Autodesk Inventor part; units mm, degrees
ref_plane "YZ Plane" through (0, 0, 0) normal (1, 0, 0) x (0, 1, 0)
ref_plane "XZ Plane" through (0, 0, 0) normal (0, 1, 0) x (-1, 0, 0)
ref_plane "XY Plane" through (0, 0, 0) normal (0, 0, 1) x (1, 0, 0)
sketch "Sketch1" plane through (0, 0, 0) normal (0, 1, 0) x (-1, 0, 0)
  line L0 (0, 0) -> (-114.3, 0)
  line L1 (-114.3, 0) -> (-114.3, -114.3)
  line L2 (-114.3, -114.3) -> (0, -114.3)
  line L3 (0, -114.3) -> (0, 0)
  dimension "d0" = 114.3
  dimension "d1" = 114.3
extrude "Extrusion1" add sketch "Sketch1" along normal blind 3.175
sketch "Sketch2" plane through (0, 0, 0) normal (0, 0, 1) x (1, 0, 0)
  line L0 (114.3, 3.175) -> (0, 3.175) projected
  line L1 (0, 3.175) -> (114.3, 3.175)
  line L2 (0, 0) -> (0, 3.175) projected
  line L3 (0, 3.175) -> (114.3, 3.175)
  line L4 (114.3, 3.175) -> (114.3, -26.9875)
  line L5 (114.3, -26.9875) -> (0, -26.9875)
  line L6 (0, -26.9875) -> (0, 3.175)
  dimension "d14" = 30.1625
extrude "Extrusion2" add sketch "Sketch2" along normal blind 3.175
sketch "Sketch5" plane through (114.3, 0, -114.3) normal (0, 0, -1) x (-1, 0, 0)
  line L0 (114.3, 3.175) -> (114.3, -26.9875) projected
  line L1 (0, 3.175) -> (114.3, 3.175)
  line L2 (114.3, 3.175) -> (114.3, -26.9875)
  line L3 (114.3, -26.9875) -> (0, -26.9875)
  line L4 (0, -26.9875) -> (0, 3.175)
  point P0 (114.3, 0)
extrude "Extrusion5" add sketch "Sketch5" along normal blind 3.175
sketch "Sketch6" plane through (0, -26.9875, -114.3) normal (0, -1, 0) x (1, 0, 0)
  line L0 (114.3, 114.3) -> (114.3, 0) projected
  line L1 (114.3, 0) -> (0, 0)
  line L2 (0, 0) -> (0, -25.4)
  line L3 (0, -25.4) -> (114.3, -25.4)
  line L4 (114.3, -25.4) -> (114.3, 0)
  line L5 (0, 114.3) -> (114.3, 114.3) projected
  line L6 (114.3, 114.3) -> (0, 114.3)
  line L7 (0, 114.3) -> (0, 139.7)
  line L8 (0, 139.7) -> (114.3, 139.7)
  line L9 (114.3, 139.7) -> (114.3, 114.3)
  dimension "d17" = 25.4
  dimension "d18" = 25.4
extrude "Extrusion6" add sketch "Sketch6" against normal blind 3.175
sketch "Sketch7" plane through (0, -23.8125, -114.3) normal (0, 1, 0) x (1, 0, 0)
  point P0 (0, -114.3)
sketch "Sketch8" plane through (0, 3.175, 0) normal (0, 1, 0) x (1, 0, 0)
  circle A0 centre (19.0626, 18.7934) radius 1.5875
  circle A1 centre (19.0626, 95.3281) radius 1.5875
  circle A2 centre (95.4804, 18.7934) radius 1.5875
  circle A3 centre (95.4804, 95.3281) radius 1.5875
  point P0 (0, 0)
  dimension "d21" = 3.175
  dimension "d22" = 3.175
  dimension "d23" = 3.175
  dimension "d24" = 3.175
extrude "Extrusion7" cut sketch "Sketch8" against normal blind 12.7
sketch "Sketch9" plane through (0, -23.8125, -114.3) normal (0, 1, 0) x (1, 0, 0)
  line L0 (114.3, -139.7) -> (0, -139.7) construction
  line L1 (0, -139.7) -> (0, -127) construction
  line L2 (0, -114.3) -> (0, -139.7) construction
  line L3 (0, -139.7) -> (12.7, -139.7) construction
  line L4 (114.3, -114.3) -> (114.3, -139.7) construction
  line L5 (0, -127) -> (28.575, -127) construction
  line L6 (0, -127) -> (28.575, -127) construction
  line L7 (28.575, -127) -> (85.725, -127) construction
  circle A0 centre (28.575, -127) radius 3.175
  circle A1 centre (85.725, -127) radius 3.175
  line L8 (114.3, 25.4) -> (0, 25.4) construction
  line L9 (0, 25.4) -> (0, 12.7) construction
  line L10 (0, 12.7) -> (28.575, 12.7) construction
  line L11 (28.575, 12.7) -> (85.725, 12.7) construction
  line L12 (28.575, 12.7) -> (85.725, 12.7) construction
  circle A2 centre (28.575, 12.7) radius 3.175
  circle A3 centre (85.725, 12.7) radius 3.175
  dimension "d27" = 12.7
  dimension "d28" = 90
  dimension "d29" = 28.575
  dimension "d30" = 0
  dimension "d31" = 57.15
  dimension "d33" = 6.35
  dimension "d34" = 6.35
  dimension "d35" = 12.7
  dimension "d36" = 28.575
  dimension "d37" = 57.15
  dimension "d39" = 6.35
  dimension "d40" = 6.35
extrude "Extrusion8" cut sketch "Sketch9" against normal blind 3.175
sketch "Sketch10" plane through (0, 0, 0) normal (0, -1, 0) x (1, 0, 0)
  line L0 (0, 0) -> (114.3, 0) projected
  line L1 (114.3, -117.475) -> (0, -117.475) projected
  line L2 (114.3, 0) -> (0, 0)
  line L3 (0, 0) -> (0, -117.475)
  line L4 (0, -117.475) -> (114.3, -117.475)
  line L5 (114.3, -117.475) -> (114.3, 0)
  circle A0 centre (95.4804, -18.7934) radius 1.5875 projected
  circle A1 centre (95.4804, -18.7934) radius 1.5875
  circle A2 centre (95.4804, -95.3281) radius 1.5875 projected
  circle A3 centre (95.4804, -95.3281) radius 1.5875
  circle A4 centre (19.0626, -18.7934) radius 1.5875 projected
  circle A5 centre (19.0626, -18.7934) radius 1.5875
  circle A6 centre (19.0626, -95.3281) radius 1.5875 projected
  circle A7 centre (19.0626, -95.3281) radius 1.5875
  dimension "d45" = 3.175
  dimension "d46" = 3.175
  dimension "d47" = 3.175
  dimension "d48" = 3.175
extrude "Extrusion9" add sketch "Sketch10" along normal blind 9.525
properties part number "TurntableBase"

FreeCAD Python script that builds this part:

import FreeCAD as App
import Part
import Sketcher
Q = App.Units.Quantity


def add_polygon(sketch, points):
    """Adds a closed chain of lines whose ends are joined by coincident constraints."""
    first, n = sketch.GeometryCount, len(points)
    for a, b in zip(points, points[1:] + points[:1]):
        sketch.addGeometry(Part.LineSegment(App.Vector(*a, 0), App.Vector(*b, 0)), False)
    for i in range(n):
        sketch.addConstraint(Sketcher.Constraint("Coincident", first + i, 2, first + (i + 1) % n, 1))

doc = App.newDocument("Part")
body = doc.addObject("PartDesign::Body", "Body")

sketch1 = body.newObject("Sketcher::SketchObject", "Sketch")
sketch1.AttachmentSupport = (doc.getObject("XZ_Plane"), [""])
sketch1.MapMode = "FlatFace"
add_polygon(sketch1, [(0, -114), (0, 0), (114, 0), (114, -114)])
sketch1.addConstraint([
    Sketcher.Constraint("Vertical", 0),
    Sketcher.Constraint("Horizontal", 1),
    Sketcher.Constraint("Vertical", 2),
    Sketcher.Constraint("Horizontal", 3),
    Sketcher.Constraint("Coincident", 0, 2, -1, 1),
    Sketcher.Constraint("Equal", 3, 0),
    Sketcher.Constraint("DistanceX", 1, 1, 1, 2, Q("4.5 in")),
])
pad1 = body.newObject("PartDesign::Pad", "Pad")
pad1.Profile = sketch1
pad1.Length = Q("0.125 in")
pad1.Reversed = True

sketch2 = body.newObject("Sketcher::SketchObject", "Sketch001")
sketch2.AttachmentSupport = (doc.getObject("XY_Plane"), [""])
sketch2.MapMode = "FlatFace"
add_polygon(sketch2, [(114, -27), (114, 3), (0, 3), (0, -27)])
sketch2.addConstraint([
    Sketcher.Constraint("Vertical", 0),
    Sketcher.Constraint("Horizontal", 1),
    Sketcher.Constraint("Vertical", 2),
    Sketcher.Constraint("Horizontal", 3),
    Sketcher.Constraint("PointOnObject", 1, 2, -2),
    Sketcher.Constraint("DistanceY", 0, 1, 0, 2, Q("1.1875 in")),
    Sketcher.Constraint("DistanceX", 1, 2, 1, 1, Q("4.5 in")),
    Sketcher.Constraint("DistanceY", -1, 1, 0, 2, Q("0.125 in")),
])
pad2 = body.newObject("PartDesign::Pad", "Pad001")
pad2.Profile = sketch2
pad2.Length = Q("0.125 in")

sketch3 = body.newObject("Sketcher::SketchObject", "Sketch002")
sketch3.AttachmentSupport = (doc.getObject("XY_Plane"), [""])
sketch3.MapMode = "FlatFace"
sketch3.AttachmentOffset = App.Placement(App.Vector(0, 0, -4.5 * 25.4), App.Rotation())
add_polygon(sketch3, [(0, -27), (0, 3), (114, 3), (114, -27)])
sketch3.addConstraint([
    Sketcher.Constraint("Vertical", 0),
    Sketcher.Constraint("Horizontal", 1),
    Sketcher.Constraint("Vertical", 2),
    Sketcher.Constraint("Horizontal", 3),
    Sketcher.Constraint("PointOnObject", 0, 2, -2),
    Sketcher.Constraint("DistanceX", 1, 1, 1, 2, Q("4.5 in")),
    Sketcher.Constraint("DistanceY", 0, 1, 0, 2, Q("1.1875 in")),
    Sketcher.Constraint("DistanceY", -1, 1, 0, 2, Q("0.125 in")),
])
pad3 = body.newObject("PartDesign::Pad", "Pad002")
pad3.Profile = sketch3
pad3.Length = Q("0.125 in")
pad3.Reversed = True

sketch4 = body.newObject("Sketcher::SketchObject", "Sketch003")
sketch4.AttachmentSupport = (doc.getObject("XZ_Plane"), [""])
sketch4.MapMode = "FlatFace"
sketch4.AttachmentOffset = App.Placement(App.Vector(0, 0, 1.0625 * 25.4), App.Rotation())
add_polygon(sketch4, [(114, -140), (114, -114), (0, -114), (0, -140)])
add_polygon(sketch4, [(0, 0), (114, 0), (114, 25), (0, 25)])
sketch4.addConstraint([
    Sketcher.Constraint("Vertical", 0),
    Sketcher.Constraint("Horizontal", 1),
    Sketcher.Constraint("Vertical", 2),
    Sketcher.Constraint("Horizontal", 3),
    Sketcher.Constraint("Horizontal", 4),
    Sketcher.Constraint("Vertical", 5),
    Sketcher.Constraint("Horizontal", 6),
    Sketcher.Constraint("Vertical", 7),
    Sketcher.Constraint("Coincident", 7, 2, -1, 1),
    Sketcher.Constraint("PointOnObject", 1, 2, -2),
    Sketcher.Constraint("Vertical", 3, 2, 4, 2),
    Sketcher.Constraint("Equal", 2, 5),
    Sketcher.Constraint("DistanceY", 0, 1, 0, 2, Q("1 in")),
    Sketcher.Constraint("DistanceX", 1, 2, 1, 1, Q("4.5 in")),
    Sketcher.Constraint("DistanceY", 0, 2, -1, 1, Q("4.5 in")),
])
pad4 = body.newObject("PartDesign::Pad", "Pad003")
pad4.Profile = sketch4
pad4.Length = Q("0.125 in")
pad4.Reversed = True

sketch5 = body.newObject("Sketcher::SketchObject", "Sketch004")
sketch5.AttachmentSupport = (doc.getObject("XZ_Plane"), [""])
sketch5.MapMode = "FlatFace"
sketch5.AttachmentOffset = App.Placement(App.Vector(0, 0, -0.125 * 25.4), App.Rotation())
sketch5.addGeometry([
    Part.Circle(App.Vector(19.1, -18.8, 0), App.Vector(0, 0, 1), 1.6),
    Part.Circle(App.Vector(19.1, -95.3, 0), App.Vector(0, 0, 1), 1.6),
    Part.Circle(App.Vector(95.5, -18.8, 0), App.Vector(0, 0, 1), 1.6),
    Part.Circle(App.Vector(95.5, -95.3, 0), App.Vector(0, 0, 1), 1.6),
], False)
sketch5.addConstraint([
    Sketcher.Constraint("Equal", 0, 1),
    Sketcher.Constraint("Equal", 1, 2),
    Sketcher.Constraint("Equal", 2, 3),
    Sketcher.Constraint("Horizontal", 0, 3, 2, 3),
    Sketcher.Constraint("Horizontal", 1, 3, 3, 3),
    Sketcher.Constraint("Vertical", 0, 3, 1, 3),
    Sketcher.Constraint("Vertical", 2, 3, 3, 3),
    Sketcher.Constraint("Diameter", 0, Q("0.125 in")),
    Sketcher.Constraint("DistanceX", -1, 1, 0, 3, Q("0.7505 in")),
    Sketcher.Constraint("DistanceY", 0, 3, -1, 1, Q("0.7399 in")),
    Sketcher.Constraint("DistanceY", 1, 3, -1, 1, 95.328),
    Sketcher.Constraint("DistanceX", -1, 1, 2, 3, 95.4804),
])
pocket1 = body.newObject("PartDesign::Pocket", "Pocket")
pocket1.Profile = sketch5
pocket1.Length = Q("0.5 in")
pocket1.Reversed = True

sketch6 = body.newObject("Sketcher::SketchObject", "Sketch005")
sketch6.AttachmentSupport = (doc.getObject("XZ_Plane"), [""])
sketch6.MapMode = "FlatFace"
sketch6.AttachmentOffset = App.Placement(App.Vector(0, 0, 0.9375 * 25.4), App.Rotation())
sketch6.addGeometry([
    Part.Circle(App.Vector(28.6, 12.7, 0), App.Vector(0, 0, 1), 3.2),
    Part.Circle(App.Vector(85.7, 12.7, 0), App.Vector(0, 0, 1), 3.2),
    Part.Circle(App.Vector(28.6, -127, 0), App.Vector(0, 0, 1), 3.2),
    Part.Circle(App.Vector(85.7, -127, 0), App.Vector(0, 0, 1), 3.2),
], False)
sketch6.addConstraint([
    Sketcher.Constraint("Equal", 0, 1),
    Sketcher.Constraint("Equal", 1, 2),
    Sketcher.Constraint("Equal", 2, 3),
    Sketcher.Constraint("Horizontal", 0, 3, 1, 3),
    Sketcher.Constraint("Horizontal", 2, 3, 3, 3),
    Sketcher.Constraint("Vertical", 0, 3, 2, 3),
    Sketcher.Constraint("Vertical", 1, 3, 3, 3),
    Sketcher.Constraint("Diameter", 0, Q("0.25 in")),
    Sketcher.Constraint("DistanceY", -1, 1, 0, 3, Q("0.5 in")),
    Sketcher.Constraint("DistanceX", 0, 3, 1, 3, Q("2.25 in")),
    Sketcher.Constraint("DistanceX", -1, 1, 0, 3, Q("1.125 in")),
    Sketcher.Constraint("DistanceY", 2, 3, -1, 1, Q("5 in")),
])
pocket2 = body.newObject("PartDesign::Pocket", "Pocket001")
pocket2.Profile = sketch6
pocket2.Length = Q("0.125 in")
pocket2.Reversed = True

sketch7 = body.newObject("Sketcher::SketchObject", "Sketch006")
sketch7.AttachmentSupport = (doc.getObject("XZ_Plane"), [""])
sketch7.MapMode = "FlatFace"
add_polygon(sketch7, [(114.3, 0), (0, 0), (0, -117.5), (114.3, -117.5)])
sketch7.addGeometry(Part.Circle(App.Vector(19.1, -95.3, 0), App.Vector(0, 0, 1), 1.6), False)
sketch7.addGeometry(Part.Circle(App.Vector(95.5, -95.3, 0), App.Vector(0, 0, 1), 1.6), False)
sketch7.addGeometry(Part.Circle(App.Vector(19.1, -18.8, 0), App.Vector(0, 0, 1), 1.6), False)
sketch7.addGeometry(Part.Circle(App.Vector(95.5, -18.8, 0), App.Vector(0, 0, 1), 1.6), False)
sketch7.addConstraint([
    Sketcher.Constraint("Horizontal", 0),
    Sketcher.Constraint("Vertical", 1),
    Sketcher.Constraint("Horizontal", 2),
    Sketcher.Constraint("Vertical", 3),
    Sketcher.Constraint("Coincident", 0, 2, -1, 1),
    Sketcher.Constraint("Equal", 4, 5),
    Sketcher.Constraint("Equal", 5, 6),
    Sketcher.Constraint("Equal", 6, 7),
    Sketcher.Constraint("Horizontal", 4, 3, 5, 3),
    Sketcher.Constraint("Horizontal", 6, 3, 7, 3),
    Sketcher.Constraint("Vertical", 4, 3, 6, 3),
    Sketcher.Constraint("Vertical", 5, 3, 7, 3),
    Sketcher.Constraint("Diameter", 4, Q("0.125 in")),
    Sketcher.Constraint("DistanceX", 0, 2, 0, 1, Q("4.5 in")),
    Sketcher.Constraint("DistanceY", 1, 2, 1, 1, Q("4.625 in")),
    Sketcher.Constraint("DistanceX", -1, 1, 4, 3, Q("0.7505 in")),
    Sketcher.Constraint("DistanceY", 6, 3, -1, 1, Q("0.7399 in")),
    Sketcher.Constraint("DistanceY", 4, 3, -1, 1, 95.328),
    Sketcher.Constraint("DistanceX", -1, 1, 5, 3, 95.4804),
])
pad5 = body.newObject("PartDesign::Pad", "Pad004")
pad5.Profile = sketch7
pad5.Length = Q("0.375 in")

doc.recompute()
